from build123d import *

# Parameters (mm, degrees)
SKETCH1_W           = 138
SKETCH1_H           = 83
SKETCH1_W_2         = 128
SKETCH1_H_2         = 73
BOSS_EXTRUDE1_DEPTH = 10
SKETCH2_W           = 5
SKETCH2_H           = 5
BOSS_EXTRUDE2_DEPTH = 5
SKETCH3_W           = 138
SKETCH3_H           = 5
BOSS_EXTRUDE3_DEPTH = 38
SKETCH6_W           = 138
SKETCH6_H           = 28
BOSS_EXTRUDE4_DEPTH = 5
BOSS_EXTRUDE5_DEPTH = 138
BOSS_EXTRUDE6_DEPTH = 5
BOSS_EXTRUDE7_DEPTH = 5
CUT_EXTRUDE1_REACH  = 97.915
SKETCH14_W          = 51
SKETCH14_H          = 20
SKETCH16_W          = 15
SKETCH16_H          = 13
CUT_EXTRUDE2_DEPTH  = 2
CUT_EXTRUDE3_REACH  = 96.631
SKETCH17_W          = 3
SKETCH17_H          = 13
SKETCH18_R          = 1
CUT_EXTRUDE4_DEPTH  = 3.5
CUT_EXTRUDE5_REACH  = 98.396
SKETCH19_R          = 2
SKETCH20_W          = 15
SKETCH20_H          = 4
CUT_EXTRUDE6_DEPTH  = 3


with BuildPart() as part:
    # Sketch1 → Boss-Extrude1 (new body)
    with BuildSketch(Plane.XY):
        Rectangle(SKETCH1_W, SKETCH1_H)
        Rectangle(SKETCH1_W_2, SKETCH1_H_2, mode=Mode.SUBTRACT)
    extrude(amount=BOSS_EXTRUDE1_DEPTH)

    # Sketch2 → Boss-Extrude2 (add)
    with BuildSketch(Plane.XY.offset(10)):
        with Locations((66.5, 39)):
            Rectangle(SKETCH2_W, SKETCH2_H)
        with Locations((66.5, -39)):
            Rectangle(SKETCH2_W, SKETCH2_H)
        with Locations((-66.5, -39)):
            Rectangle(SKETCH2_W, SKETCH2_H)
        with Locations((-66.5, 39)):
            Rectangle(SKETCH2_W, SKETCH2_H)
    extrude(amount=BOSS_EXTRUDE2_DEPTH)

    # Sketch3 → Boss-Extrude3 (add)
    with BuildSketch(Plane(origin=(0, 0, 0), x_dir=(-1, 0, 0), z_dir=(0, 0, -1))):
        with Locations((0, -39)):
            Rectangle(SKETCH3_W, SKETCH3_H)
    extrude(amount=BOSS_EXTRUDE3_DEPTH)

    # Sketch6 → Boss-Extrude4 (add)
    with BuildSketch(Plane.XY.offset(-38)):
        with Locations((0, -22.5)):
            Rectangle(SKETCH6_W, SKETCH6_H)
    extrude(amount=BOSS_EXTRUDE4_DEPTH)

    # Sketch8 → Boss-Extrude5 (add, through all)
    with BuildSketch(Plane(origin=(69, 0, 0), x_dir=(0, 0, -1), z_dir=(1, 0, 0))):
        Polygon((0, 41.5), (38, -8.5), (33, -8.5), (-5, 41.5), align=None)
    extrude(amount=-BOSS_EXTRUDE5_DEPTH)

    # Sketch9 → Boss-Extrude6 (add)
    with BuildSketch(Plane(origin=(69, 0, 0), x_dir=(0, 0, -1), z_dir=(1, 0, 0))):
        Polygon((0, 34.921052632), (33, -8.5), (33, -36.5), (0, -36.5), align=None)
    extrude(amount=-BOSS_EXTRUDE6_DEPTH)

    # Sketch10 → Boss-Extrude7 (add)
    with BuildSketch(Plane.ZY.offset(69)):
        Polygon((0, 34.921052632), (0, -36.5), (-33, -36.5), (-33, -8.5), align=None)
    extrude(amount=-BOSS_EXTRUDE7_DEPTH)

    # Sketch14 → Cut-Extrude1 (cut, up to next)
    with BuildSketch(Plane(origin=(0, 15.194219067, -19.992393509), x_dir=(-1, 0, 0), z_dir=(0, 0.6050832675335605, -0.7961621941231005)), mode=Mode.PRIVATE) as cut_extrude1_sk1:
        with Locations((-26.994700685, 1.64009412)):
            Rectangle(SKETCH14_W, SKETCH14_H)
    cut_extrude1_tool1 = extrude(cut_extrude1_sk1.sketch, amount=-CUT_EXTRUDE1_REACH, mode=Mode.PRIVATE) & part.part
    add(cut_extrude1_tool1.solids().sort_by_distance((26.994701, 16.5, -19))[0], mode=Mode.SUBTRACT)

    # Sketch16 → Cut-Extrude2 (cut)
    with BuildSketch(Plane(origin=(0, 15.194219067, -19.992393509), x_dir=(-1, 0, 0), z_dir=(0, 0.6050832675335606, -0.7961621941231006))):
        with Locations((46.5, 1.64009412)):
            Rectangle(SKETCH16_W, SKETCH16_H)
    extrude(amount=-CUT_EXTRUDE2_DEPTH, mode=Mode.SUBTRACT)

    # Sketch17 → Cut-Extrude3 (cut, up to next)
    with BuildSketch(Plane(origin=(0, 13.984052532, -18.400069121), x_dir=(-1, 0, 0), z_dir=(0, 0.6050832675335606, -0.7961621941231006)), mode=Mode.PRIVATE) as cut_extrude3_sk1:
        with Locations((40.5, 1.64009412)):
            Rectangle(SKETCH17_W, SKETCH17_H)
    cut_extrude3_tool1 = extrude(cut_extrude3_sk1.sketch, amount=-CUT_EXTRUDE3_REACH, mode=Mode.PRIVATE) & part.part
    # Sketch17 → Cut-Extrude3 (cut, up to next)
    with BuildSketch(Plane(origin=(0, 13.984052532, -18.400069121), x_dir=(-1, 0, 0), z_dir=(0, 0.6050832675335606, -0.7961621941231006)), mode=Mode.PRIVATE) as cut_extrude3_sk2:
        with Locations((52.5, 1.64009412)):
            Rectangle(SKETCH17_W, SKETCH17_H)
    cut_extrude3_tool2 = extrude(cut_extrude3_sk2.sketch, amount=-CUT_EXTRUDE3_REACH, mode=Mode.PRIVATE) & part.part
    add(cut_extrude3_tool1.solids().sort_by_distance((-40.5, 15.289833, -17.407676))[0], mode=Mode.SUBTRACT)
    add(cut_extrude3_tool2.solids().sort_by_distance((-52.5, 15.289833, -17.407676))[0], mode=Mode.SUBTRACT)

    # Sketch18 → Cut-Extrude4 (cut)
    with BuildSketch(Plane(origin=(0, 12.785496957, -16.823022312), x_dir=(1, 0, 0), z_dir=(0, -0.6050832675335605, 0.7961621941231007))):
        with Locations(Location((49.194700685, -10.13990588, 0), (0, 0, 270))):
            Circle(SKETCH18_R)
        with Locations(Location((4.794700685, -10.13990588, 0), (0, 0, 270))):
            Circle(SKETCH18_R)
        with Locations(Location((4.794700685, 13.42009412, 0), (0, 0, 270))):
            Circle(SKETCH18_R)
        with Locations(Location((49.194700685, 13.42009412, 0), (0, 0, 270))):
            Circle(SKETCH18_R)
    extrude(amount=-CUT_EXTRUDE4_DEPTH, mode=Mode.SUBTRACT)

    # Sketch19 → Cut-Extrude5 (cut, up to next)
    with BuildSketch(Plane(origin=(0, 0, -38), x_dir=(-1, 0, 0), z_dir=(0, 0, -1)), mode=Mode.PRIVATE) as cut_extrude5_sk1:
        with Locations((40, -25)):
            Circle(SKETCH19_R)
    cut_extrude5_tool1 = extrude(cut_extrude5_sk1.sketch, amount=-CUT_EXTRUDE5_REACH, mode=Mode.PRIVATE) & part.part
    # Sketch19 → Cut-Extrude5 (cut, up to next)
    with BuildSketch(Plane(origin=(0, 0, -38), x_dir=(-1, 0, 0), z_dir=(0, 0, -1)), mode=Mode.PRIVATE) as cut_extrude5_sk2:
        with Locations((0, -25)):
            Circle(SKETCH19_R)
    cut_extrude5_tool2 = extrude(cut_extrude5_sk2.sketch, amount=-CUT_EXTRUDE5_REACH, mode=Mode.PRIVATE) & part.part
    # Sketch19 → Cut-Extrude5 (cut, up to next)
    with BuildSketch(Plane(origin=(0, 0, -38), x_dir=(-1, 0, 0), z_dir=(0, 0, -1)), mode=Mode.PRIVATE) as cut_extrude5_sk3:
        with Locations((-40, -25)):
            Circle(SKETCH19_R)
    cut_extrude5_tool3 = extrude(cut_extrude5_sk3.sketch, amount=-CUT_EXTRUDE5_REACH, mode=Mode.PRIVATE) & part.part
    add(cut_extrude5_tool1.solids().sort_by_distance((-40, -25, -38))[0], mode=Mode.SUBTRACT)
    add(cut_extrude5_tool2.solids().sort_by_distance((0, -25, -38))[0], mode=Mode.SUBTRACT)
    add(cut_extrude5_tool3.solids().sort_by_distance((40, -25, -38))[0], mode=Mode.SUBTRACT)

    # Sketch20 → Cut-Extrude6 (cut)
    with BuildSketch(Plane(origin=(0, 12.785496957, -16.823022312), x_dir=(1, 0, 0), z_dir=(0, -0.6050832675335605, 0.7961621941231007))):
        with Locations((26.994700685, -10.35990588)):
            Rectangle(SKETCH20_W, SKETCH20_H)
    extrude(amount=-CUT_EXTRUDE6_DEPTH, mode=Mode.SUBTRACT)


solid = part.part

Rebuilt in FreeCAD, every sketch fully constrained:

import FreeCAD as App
import Part
import Sketcher
from FreeCAD import Vector
Q = App.Units.Quantity


def add_polygon(sketch, points):
    """Adds a closed chain of lines whose ends are joined by coincident constraints."""
    first, n = sketch.GeometryCount, len(points)
    for a, b in zip(points, points[1:] + points[:1]):
        sketch.addGeometry(Part.LineSegment(App.Vector(*a, 0), App.Vector(*b, 0)), False)
    for i in range(n):
        sketch.addConstraint(Sketcher.Constraint("Coincident", first + i, 2, first + (i + 1) % n, 1))

doc = App.newDocument("Part")
body = doc.addObject("PartDesign::Body", "Body")

sketch1 = doc.addObject("Sketcher::SketchObject", "Sketch")
body.addObject(sketch1)
sketch1.AttachmentSupport = (doc.XY_Plane, [""])
sketch1.MapMode = "FlatFace"
add_polygon(sketch1, [(-69, 41.5), (-69, -41.5), (69, -41.5), (69, 41.5)])
add_polygon(sketch1, [(64, -36.5), (-64, -36.5), (-64, 36.5), (64, 36.5)])
sketch1.addConstraint(Sketcher.Constraint("Vertical", 0))
sketch1.addConstraint(Sketcher.Constraint("Horizontal", 1))
sketch1.addConstraint(Sketcher.Constraint("Vertical", 2))
sketch1.addConstraint(Sketcher.Constraint("Horizontal", 3))
sketch1.addConstraint(Sketcher.Constraint("Horizontal", 4))
sketch1.addConstraint(Sketcher.Constraint("Vertical", 5))
sketch1.addConstraint(Sketcher.Constraint("Horizontal", 6))
sketch1.addConstraint(Sketcher.Constraint("Vertical", 7))
sketch1.addConstraint(Sketcher.Constraint("Symmetric", 0, 2, 2, 2, -1, 1))
sketch1.addConstraint(Sketcher.Constraint("Symmetric", 4, 2, 6, 2, -1, 1))
sketch1.addConstraint(Sketcher.Constraint("DistanceX", 1, 1, 1, 2, Q("138 mm")))
sketch1.addConstraint(Sketcher.Constraint("DistanceX", 4, 2, 4, 1, Q("128 mm")))
sketch1.addConstraint(Sketcher.Constraint("DistanceY", 0, 2, 0, 1, Q("83 mm")))
sketch1.addConstraint(Sketcher.Constraint("DistanceY", 5, 1, 5, 2, Q("73 mm")))
pad1 = doc.addObject("PartDesign::Pad", "Pad")
body.addObject(pad1)
pad1.Profile = sketch1
pad1.Length = 10

sketch2 = doc.addObject("Sketcher::SketchObject", "Sketch001")
body.addObject(sketch2)
sketch2.AttachmentSupport = (doc.XY_Plane, [""])
sketch2.MapMode = "FlatFace"
sketch2.AttachmentOffset = App.Placement(Vector(0, 0, 10), App.Rotation())
add_polygon(sketch2, [(64, 41.5), (64, 36.5), (69, 36.5), (69, 41.5)])
add_polygon(sketch2, [(64, -36.5), (64, -41.5), (69, -41.5), (69, -36.5)])
add_polygon(sketch2, [(-69, -36.5), (-69, -41.5), (-64, -41.5), (-64, -36.5)])
add_polygon(sketch2, [(-69, 41.5), (-69, 36.5), (-64, 36.5), (-64, 41.5)])
sketch2.addConstraint(Sketcher.Constraint("Vertical", 0))
sketch2.addConstraint(Sketcher.Constraint("Horizontal", 1))
sketch2.addConstraint(Sketcher.Constraint("Vertical", 2))
sketch2.addConstraint(Sketcher.Constraint("Horizontal", 3))
sketch2.addConstraint(Sketcher.Constraint("Vertical", 4))
sketch2.addConstraint(Sketcher.Constraint("Horizontal", 5))
sketch2.addConstraint(Sketcher.Constraint("Vertical", 6))
sketch2.addConstraint(Sketcher.Constraint("Horizontal", 7))
sketch2.addConstraint(Sketcher.Constraint("Vertical", 8))
sketch2.addConstraint(Sketcher.Constraint("Horizontal", 9))
sketch2.addConstraint(Sketcher.Constraint("Vertical", 10))
sketch2.addConstraint(Sketcher.Constraint("Horizontal", 11))
sketch2.addConstraint(Sketcher.Constraint("Vertical", 12))
sketch2.addConstraint(Sketcher.Constraint("Horizontal", 13))
sketch2.addConstraint(Sketcher.Constraint("Vertical", 14))
sketch2.addConstraint(Sketcher.Constraint("Horizontal", 15))
sketch2.addConstraint(Sketcher.Constraint("Symmetric", 2, 2, 8, 2, -1, 1))
sketch2.addConstraint(Sketcher.Constraint("Symmetric", 0, 2, 10, 2, -1, 1))
sketch2.addConstraint(Sketcher.Constraint("Symmetric", 6, 2, 12, 2, -1, 1))
sketch2.addConstraint(Sketcher.Constraint("Symmetric", 4, 2, 14, 2, -1, 1))
sketch2.addConstraint(Sketcher.Constraint("Symmetric", 5, 2, 8, 2, -2))
sketch2.addConstraint(Sketcher.Constraint("Symmetric", 7, 2, 10, 2, -2))
sketch2.addConstraint(Sketcher.Constraint("Equal", 15, 0))
sketch2.addConstraint(Sketcher.Constraint("DistanceX", 1, 1, 1, 2, Q("5 mm")))
sketch2.addConstraint(Sketcher.Constraint("DistanceX", -1, 1, 0, 2, Q("64 mm")))
sketch2.addConstraint(Sketcher.Constraint("DistanceY", 4, 2, 0, 2, Q("78 mm")))
pad2 = doc.addObject("PartDesign::Pad", "Pad001")
body.addObject(pad2)
pad2.Profile = sketch2
pad2.Length = 5

sketch3 = doc.addObject("Sketcher::SketchObject", "Sketch002")
body.addObject(sketch3)
sketch3.AttachmentSupport = (doc.XY_Plane, [""])
sketch3.MapMode = "FlatFace"
add_polygon(sketch3, [(69, -36.5), (69, -41.5), (-69, -41.5), (-69, -36.5)])
sketch3.addConstraint(Sketcher.Constraint("Vertical", 0))
sketch3.addConstraint(Sketcher.Constraint("Horizontal", 1))
sketch3.addConstraint(Sketcher.Constraint("Vertical", 2))
sketch3.addConstraint(Sketcher.Constraint("Horizontal", 3))
sketch3.addConstraint(Sketcher.Constraint("DistanceX", 1, 2, 1, 1, Q("138 mm")))
sketch3.addConstraint(Sketcher.Constraint("DistanceY", 0, 2, 0, 1, Q("5 mm")))
sketch3.addConstraint(Sketcher.Constraint("DistanceX", -1, 1, 0, 2, Q("69 mm")))
sketch3.addConstraint(Sketcher.Constraint("DistanceY", 0, 2, -1, 1, Q("41.5 mm")))
pad3 = doc.addObject("PartDesign::Pad", "Pad002")
body.addObject(pad3)
pad3.Profile = sketch3
pad3.Length = 38
pad3.Reversed = True

sketch4 = doc.addObject("Sketcher::SketchObject", "Sketch003")
body.addObject(sketch4)
sketch4.AttachmentSupport = (doc.XY_Plane, [""])
sketch4.MapMode = "FlatFace"
sketch4.AttachmentOffset = App.Placement(Vector(0, 0, -38), App.Rotation())
add_polygon(sketch4, [(-69, -8.5), (-69, -36.5), (69, -36.5), (69, -8.5)])
sketch4.addConstraint(Sketcher.Constraint("Vertical", 0))
sketch4.addConstraint(Sketcher.Constraint("Horizontal", 1))
sketch4.addConstraint(Sketcher.Constraint("Vertical", 2))
sketch4.addConstraint(Sketcher.Constraint("Horizontal", 3))
sketch4.addConstraint(Sketcher.Constraint("DistanceX", 1, 1, 1, 2, Q("138 mm")))
sketch4.addConstraint(Sketcher.Constraint("DistanceY", 0, 2, 0, 1, Q("28 mm")))
sketch4.addConstraint(Sketcher.Constraint("DistanceX", 0, 2, -1, 1, Q("69 mm")))
sketch4.addConstraint(Sketcher.Constraint("DistanceY", 0, 2, -1, 1, Q("36.5 mm")))
pad4 = doc.addObject("PartDesign::Pad", "Pad003")
body.addObject(pad4)
pad4.Profile = sketch4
pad4.Length = 5

sketch5 = doc.addObject("Sketcher::SketchObject", "Sketch004")
body.addObject(sketch5)
sketch5.AttachmentSupport = (doc.YZ_Plane, [""])
sketch5.MapMode = "FlatFace"
sketch5.AttachmentOffset = App.Placement(Vector(0, 0, 69), App.Rotation())
add_polygon(sketch5, [(-8.5, -38), (41.5, 0), (41.5, 5), (-8.5, -33)])
sketch5.addConstraint(Sketcher.Constraint("Vertical", 1))
sketch5.addConstraint(Sketcher.Constraint("Vertical", 3))
sketch5.addConstraint(Sketcher.Constraint("PointOnObject", 0, 2, -1))
sketch5.addConstraint(Sketcher.Constraint("Parallel", 0, 2))
sketch5.addConstraint(Sketcher.Constraint("DistanceY", 1, 1, 1, 2, Q("5 mm")))
sketch5.addConstraint(Sketcher.Constraint("DistanceY", 2, 2, -1, 1, Q("33 mm")))
sketch5.addConstraint(Sketcher.Constraint("DistanceX", 2, 2, 0, 2, Q("50 mm")))
sketch5.addConstraint(Sketcher.Constraint("DistanceX", -1, 1, 0, 2, Q("41.5 mm")))
pad5 = doc.addObject("PartDesign::Pad", "Pad004")
body.addObject(pad5)
pad5.Profile = sketch5
pad5.Length = 138
pad5.Reversed = True

sketch6 = doc.addObject("Sketcher::SketchObject", "Sketch005")
body.addObject(sketch6)
sketch6.AttachmentSupport = (doc.YZ_Plane, [""])
sketch6.MapMode = "FlatFace"
sketch6.AttachmentOffset = App.Placement(Vector(0, 0, 69), App.Rotation())
add_polygon(sketch6, [(-8.5, -33), (34.921053, 0), (-36.5, 0), (-36.5, -33)])
sketch6.addConstraint(Sketcher.Constraint("Horizontal", 1))
sketch6.addConstraint(Sketcher.Constraint("Vertical", 2))
sketch6.addConstraint(Sketcher.Constraint("Horizontal", 3))
sketch6.addConstraint(Sketcher.Constraint("PointOnObject", 0, 2, -1))
sketch6.addConstraint(Sketcher.Constraint("DistanceX", 3, 1, 3, 2, Q("28 mm")))
sketch6.addConstraint(Sketcher.Constraint("DistanceY", 2, 2, 2, 1, Q("33 mm")))
sketch6.addConstraint(Sketcher.Constraint("DistanceX", 1, 2, -1, 1, Q("36.5 mm")))
sketch6.addConstraint(Sketcher.Constraint("Distance", 0, Q("54.537948 mm")))
pad6 = doc.addObject("PartDesign::Pad", "Pad005")
body.addObject(pad6)
pad6.Profile = sketch6
pad6.Length = 5
pad6.Reversed = True

sketch7 = doc.addObject("Sketcher::SketchObject", "Sketch006")
body.addObject(sketch7)
sketch7.AttachmentSupport = (doc.YZ_Plane, [""])
sketch7.MapMode = "FlatFace"
sketch7.AttachmentOffset = App.Placement(Vector(0, 0, -69), App.Rotation())
add_polygon(sketch7, [(-36.5, 0), (34.921053, 0), (-8.5, -33), (-36.5, -33)])
sketch7.addConstraint(Sketcher.Constraint("Horizontal", 0))
sketch7.addConstraint(Sketcher.Constraint("Horizontal", 2))
sketch7.addConstraint(Sketcher.Constraint("Vertical", 3))
sketch7.addConstraint(Sketcher.Constraint("PointOnObject", 0, 2, -1))
sketch7.addConstraint(Sketcher.Constraint("DistanceX", 2, 2, 2, 1, Q("28 mm")))
sketch7.addConstraint(Sketcher.Constraint("DistanceY", 3, 1, 3, 2, Q("33 mm")))
sketch7.addConstraint(Sketcher.Constraint("DistanceX", 1, 2, -1, 1, Q("8.5 mm")))
sketch7.addConstraint(Sketcher.Constraint("Distance", 1, Q("54.537948 mm")))
pad7 = doc.addObject("PartDesign::Pad", "Pad006")
body.addObject(pad7)
pad7.Profile = sketch7
pad7.Length = 5

sketch8 = doc.addObject("Sketcher::SketchObject", "Sketch007")
body.addObject(sketch8)
sketch8.Placement = App.Placement(Vector(0, 15.194219, -19.992394), App.Rotation(Vector(-1, 0, 0), Vector(0, 0.796162194, 0.605083268), Vector(0, 0.605083268, -0.796162194), "ZXY"))
add_polygon(sketch8, [(-52.494701, 11.640094), (-52.494701, -8.359906), (-1.494701, -8.359906), (-1.494701, 11.640094)])
sketch8.addConstraint(Sketcher.Constraint("Vertical", 0))
sketch8.addConstraint(Sketcher.Constraint("Horizontal", 1))
sketch8.addConstraint(Sketcher.Constraint("Vertical", 2))
sketch8.addConstraint(Sketcher.Constraint("Horizontal", 3))
sketch8.addConstraint(Sketcher.Constraint("DistanceX", 1, 1, 1, 2, Q("51 mm")))
sketch8.addConstraint(Sketcher.Constraint("DistanceY", 0, 2, 0, 1, Q("20 mm")))
sketch8.addConstraint(Sketcher.Constraint("DistanceX", 0, 2, -1, 1, Q("52.494701 mm")))
sketch8.addConstraint(Sketcher.Constraint("DistanceY", 0, 2, -1, 1, Q("8.359906 mm")))
pocket1 = doc.addObject("PartDesign::Pocket", "Pocket")
body.addObject(pocket1)
pocket1.Profile = sketch8
pocket1.Type = "UpToFirst"

sketch9 = doc.addObject("Sketcher::SketchObject", "Sketch008")
body.addObject(sketch9)
sketch9.Placement = App.Placement(Vector(0, 15.194219, -19.992394), App.Rotation(Vector(-1, 0, 0), Vector(0, 0.796162194, 0.605083268), Vector(0, 0.605083268, -0.796162194), "ZXY"))
add_polygon(sketch9, [(39, 8.140094), (39, -4.859906), (54, -4.859906), (54, 8.140094)])
sketch9.addConstraint(Sketcher.Constraint("Vertical", 0))
sketch9.addConstraint(Sketcher.Constraint("Horizontal", 1))
sketch9.addConstraint(Sketcher.Constraint("Vertical", 2))
sketch9.addConstraint(Sketcher.Constraint("Horizontal", 3))
sketch9.addConstraint(Sketcher.Constraint("DistanceX", 1, 1, 1, 2, Q("15 mm")))
sketch9.addConstraint(Sketcher.Constraint("DistanceY", 0, 2, 0, 1, Q("13 mm")))
sketch9.addConstraint(Sketcher.Constraint("DistanceX", -1, 1, 0, 2, Q("39 mm")))
sketch9.addConstraint(Sketcher.Constraint("DistanceY", 0, 2, -1, 1, Q("4.859906 mm")))
pocket2 = doc.addObject("PartDesign::Pocket", "Pocket001")
body.addObject(pocket2)
pocket2.Profile = sketch9
pocket2.Length = 2

sketch10 = doc.addObject("Sketcher::SketchObject", "Sketch009")
body.addObject(sketch10)
sketch10.Placement = App.Placement(Vector(0, 13.984053, -18.400069), App.Rotation(Vector(-1, 0, 0), Vector(0, 0.796162194, 0.605083268), Vector(0, 0.605083268, -0.796162194), "ZXY"))
add_polygon(sketch10, [(39, 8.140094), (39, -4.859906), (42, -4.859906), (42, 8.140094)])
sketch10.addConstraint(Sketcher.Constraint("Vertical", 0))
sketch10.addConstraint(Sketcher.Constraint("Horizontal", 1))
sketch10.addConstraint(Sketcher.Constraint("Vertical", 2))
sketch10.addConstraint(Sketcher.Constraint("Horizontal", 3))
sketch10.addConstraint(Sketcher.Constraint("DistanceX", 1, 1, 1, 2, Q("3 mm")))
sketch10.addConstraint(Sketcher.Constraint("DistanceY", 0, 2, 0, 1, Q("13 mm")))
sketch10.addConstraint(Sketcher.Constraint("DistanceX", -1, 1, 0, 2, Q("39 mm")))
sketch10.addConstraint(Sketcher.Constraint("DistanceY", 0, 2, -1, 1, Q("4.859906 mm")))
pocket3 = doc.addObject("PartDesign::Pocket", "Pocket002")
body.addObject(pocket3)
pocket3.Profile = sketch10
pocket3.Type = "UpToFirst"

sketch11 = doc.addObject("Sketcher::SketchObject", "Sketch010")
body.addObject(sketch11)
sketch11.Placement = App.Placement(Vector(0, 13.984053, -18.400069), App.Rotation(Vector(-1, 0, 0), Vector(0, 0.796162194, 0.605083268), Vector(0, 0.605083268, -0.796162194), "ZXY"))
add_polygon(sketch11, [(51, 8.140094), (51, -4.859906), (54, -4.859906), (54, 8.140094)])
sketch11.addConstraint(Sketcher.Constraint("Vertical", 0))
sketch11.addConstraint(Sketcher.Constraint("Horizontal", 1))
sketch11.addConstraint(Sketcher.Constraint("Vertical", 2))
sketch11.addConstraint(Sketcher.Constraint("Horizontal", 3))
sketch11.addConstraint(Sketcher.Constraint("DistanceX", 1, 1, 1, 2, Q("3 mm")))
sketch11.addConstraint(Sketcher.Constraint("DistanceY", 0, 2, 0, 1, Q("13 mm")))
sketch11.addConstraint(Sketcher.Constraint("DistanceX", -1, 1, 0, 2, Q("51 mm")))
sketch11.addConstraint(Sketcher.Constraint("DistanceY", 0, 2, -1, 1, Q("4.859906 mm")))
pocket4 = doc.addObject("PartDesign::Pocket", "Pocket003")
body.addObject(pocket4)
pocket4.Profile = sketch11
pocket4.Type = "UpToFirst"

sketch12 = doc.addObject("Sketcher::SketchObject", "Sketch011")
body.addObject(sketch12)
sketch12.Placement = App.Placement(Vector(0, 12.785497, -16.823022), App.Rotation(Vector(1, 0, 0), Vector(0, 0.796162194, 0.605083268), Vector(0, -0.605083268, 0.796162194), "ZXY"))
sketch12.addGeometry(Part.Circle(Vector(49.194701, -10.139906, 0), Vector(0, 0, 1), 1), False)
sketch12.addGeometry(Part.Circle(Vector(4.794701, -10.139906, 0), Vector(0, 0, 1), 1), False)
sketch12.addGeometry(Part.Circle(Vector(4.794701, 13.420094, 0), Vector(0, 0, 1), 1), False)
sketch12.addGeometry(Part.Circle(Vector(49.194701, 13.420094, 0), Vector(0, 0, 1), 1), False)
sketch12.addConstraint(Sketcher.Constraint("Equal", 0, 1))
sketch12.addConstraint(Sketcher.Constraint("Equal", 1, 2))
sketch12.addConstraint(Sketcher.Constraint("Equal", 2, 3))
sketch12.addConstraint(Sketcher.Constraint("Horizontal", 0, 3, 1, 3))
sketch12.addConstraint(Sketcher.Constraint("Horizontal", 2, 3, 3, 3))
sketch12.addConstraint(Sketcher.Constraint("Vertical", 1, 3, 2, 3))
sketch12.addConstraint(Sketcher.Constraint("Vertical", 0, 3, 3, 3))
sketch12.addConstraint(Sketcher.Constraint("Diameter", 0, Q("2 mm")))
sketch12.addConstraint(Sketcher.Constraint("DistanceX", 1, 3, 0, 3, Q("44.4 mm")))
sketch12.addConstraint(Sketcher.Constraint("DistanceY", 1, 3, 2, 3, Q("23.56 mm")))
sketch12.addConstraint(Sketcher.Constraint("DistanceX", -1, 1, 0, 3, Q("49.194701 mm")))
sketch12.addConstraint(Sketcher.Constraint("DistanceY", 0, 3, -1, 1, Q("10.139906 mm")))
pocket5 = doc.addObject("PartDesign::Pocket", "Pocket004")
body.addObject(pocket5)
pocket5.Profile = sketch12
pocket5.Length = 3.5

sketch13 = doc.addObject("Sketcher::SketchObject", "Sketch012")
body.addObject(sketch13)
sketch13.AttachmentSupport = (doc.XY_Plane, [""])
sketch13.MapMode = "FlatFace"
sketch13.AttachmentOffset = App.Placement(Vector(0, 0, -38), App.Rotation())
sketch13.addGeometry(Part.Circle(Vector(-40, -25, 0), Vector(0, 0, 1), 2), False)
sketch13.addConstraint(Sketcher.Constraint("Diameter", 0, Q("4 mm")))
sketch13.addConstraint(Sketcher.Constraint("DistanceX", 0, 3, -1, 1, Q("40 mm")))
sketch13.addConstraint(Sketcher.Constraint("DistanceY", 0, 3, -1, 1, Q("25 mm")))
pocket6 = doc.addObject("PartDesign::Pocket", "Pocket005")
body.addObject(pocket6)
pocket6.Profile = sketch13
pocket6.Type = "UpToFirst"
pocket6.Reversed = True

sketch14 = doc.addObject("Sketcher::SketchObject", "Sketch013")
body.addObject(sketch14)
sketch14.AttachmentSupport = (doc.XY_Plane, [""])
sketch14.MapMode = "FlatFace"
sketch14.AttachmentOffset = App.Placement(Vector(0, 0, -38), App.Rotation())
sketch14.addGeometry(Part.Circle(Vector(0, -25, 0), Vector(0, 0, 1), 2), False)
sketch14.addConstraint(Sketcher.Constraint("PointOnObject", 0, 3, -2))
sketch14.addConstraint(Sketcher.Constraint("Diameter", 0, Q("4 mm")))
sketch14.addConstraint(Sketcher.Constraint("DistanceY", 0, 3, -1, 1, Q("25 mm")))
pocket7 = doc.addObject("PartDesign::Pocket", "Pocket006")
body.addObject(pocket7)
pocket7.Profile = sketch14
pocket7.Type = "UpToFirst"
pocket7.Reversed = True

sketch15 = doc.addObject("Sketcher::SketchObject", "Sketch014")
body.addObject(sketch15)
sketch15.AttachmentSupport = (doc.XY_Plane, [""])
sketch15.MapMode = "FlatFace"
sketch15.AttachmentOffset = App.Placement(Vector(0, 0, -38), App.Rotation())
sketch15.addGeometry(Part.Circle(Vector(40, -25, 0), Vector(0, 0, 1), 2), False)
sketch15.addConstraint(Sketcher.Constraint("Diameter", 0, Q("4 mm")))
sketch15.addConstraint(Sketcher.Constraint("DistanceX", -1, 1, 0, 3, Q("40 mm")))
sketch15.addConstraint(Sketcher.Constraint("DistanceY", 0, 3, -1, 1, Q("25 mm")))
pocket8 = doc.addObject("PartDesign::Pocket", "Pocket007")
body.addObject(pocket8)
pocket8.Profile = sketch15
pocket8.Type = "UpToFirst"
pocket8.Reversed = True

sketch16 = doc.addObject("Sketcher::SketchObject", "Sketch015")
body.addObject(sketch16)
sketch16.Placement = App.Placement(Vector(0, 12.785497, -16.823022), App.Rotation(Vector(1, 0, 0), Vector(0, 0.796162194, 0.605083268), Vector(0, -0.605083268, 0.796162194), "ZXY"))
add_polygon(sketch16, [(19.494701, -8.359906), (19.494701, -12.359906), (34.494701, -12.359906), (34.494701, -8.359906)])
sketch16.addConstraint(Sketcher.Constraint("Vertical", 0))
sketch16.addConstraint(Sketcher.Constraint("Horizontal", 1))
sketch16.addConstraint(Sketcher.Constraint("Vertical", 2))
sketch16.addConstraint(Sketcher.Constraint("Horizontal", 3))
sketch16.addConstraint(Sketcher.Constraint("DistanceX", 1, 1, 1, 2, Q("15 mm")))
sketch16.addConstraint(Sketcher.Constraint("DistanceY", 0, 2, 0, 1, Q("4 mm")))
sketch16.addConstraint(Sketcher.Constraint("DistanceX", -1, 1, 0, 2, Q("19.494701 mm")))
sketch16.addConstraint(Sketcher.Constraint("DistanceY", 0, 2, -1, 1, Q("12.359906 mm")))
pocket9 = doc.addObject("PartDesign::Pocket", "Pocket008")
body.addObject(pocket9)
pocket9.Profile = sketch16
pocket9.Length = 3

doc.recompute()
